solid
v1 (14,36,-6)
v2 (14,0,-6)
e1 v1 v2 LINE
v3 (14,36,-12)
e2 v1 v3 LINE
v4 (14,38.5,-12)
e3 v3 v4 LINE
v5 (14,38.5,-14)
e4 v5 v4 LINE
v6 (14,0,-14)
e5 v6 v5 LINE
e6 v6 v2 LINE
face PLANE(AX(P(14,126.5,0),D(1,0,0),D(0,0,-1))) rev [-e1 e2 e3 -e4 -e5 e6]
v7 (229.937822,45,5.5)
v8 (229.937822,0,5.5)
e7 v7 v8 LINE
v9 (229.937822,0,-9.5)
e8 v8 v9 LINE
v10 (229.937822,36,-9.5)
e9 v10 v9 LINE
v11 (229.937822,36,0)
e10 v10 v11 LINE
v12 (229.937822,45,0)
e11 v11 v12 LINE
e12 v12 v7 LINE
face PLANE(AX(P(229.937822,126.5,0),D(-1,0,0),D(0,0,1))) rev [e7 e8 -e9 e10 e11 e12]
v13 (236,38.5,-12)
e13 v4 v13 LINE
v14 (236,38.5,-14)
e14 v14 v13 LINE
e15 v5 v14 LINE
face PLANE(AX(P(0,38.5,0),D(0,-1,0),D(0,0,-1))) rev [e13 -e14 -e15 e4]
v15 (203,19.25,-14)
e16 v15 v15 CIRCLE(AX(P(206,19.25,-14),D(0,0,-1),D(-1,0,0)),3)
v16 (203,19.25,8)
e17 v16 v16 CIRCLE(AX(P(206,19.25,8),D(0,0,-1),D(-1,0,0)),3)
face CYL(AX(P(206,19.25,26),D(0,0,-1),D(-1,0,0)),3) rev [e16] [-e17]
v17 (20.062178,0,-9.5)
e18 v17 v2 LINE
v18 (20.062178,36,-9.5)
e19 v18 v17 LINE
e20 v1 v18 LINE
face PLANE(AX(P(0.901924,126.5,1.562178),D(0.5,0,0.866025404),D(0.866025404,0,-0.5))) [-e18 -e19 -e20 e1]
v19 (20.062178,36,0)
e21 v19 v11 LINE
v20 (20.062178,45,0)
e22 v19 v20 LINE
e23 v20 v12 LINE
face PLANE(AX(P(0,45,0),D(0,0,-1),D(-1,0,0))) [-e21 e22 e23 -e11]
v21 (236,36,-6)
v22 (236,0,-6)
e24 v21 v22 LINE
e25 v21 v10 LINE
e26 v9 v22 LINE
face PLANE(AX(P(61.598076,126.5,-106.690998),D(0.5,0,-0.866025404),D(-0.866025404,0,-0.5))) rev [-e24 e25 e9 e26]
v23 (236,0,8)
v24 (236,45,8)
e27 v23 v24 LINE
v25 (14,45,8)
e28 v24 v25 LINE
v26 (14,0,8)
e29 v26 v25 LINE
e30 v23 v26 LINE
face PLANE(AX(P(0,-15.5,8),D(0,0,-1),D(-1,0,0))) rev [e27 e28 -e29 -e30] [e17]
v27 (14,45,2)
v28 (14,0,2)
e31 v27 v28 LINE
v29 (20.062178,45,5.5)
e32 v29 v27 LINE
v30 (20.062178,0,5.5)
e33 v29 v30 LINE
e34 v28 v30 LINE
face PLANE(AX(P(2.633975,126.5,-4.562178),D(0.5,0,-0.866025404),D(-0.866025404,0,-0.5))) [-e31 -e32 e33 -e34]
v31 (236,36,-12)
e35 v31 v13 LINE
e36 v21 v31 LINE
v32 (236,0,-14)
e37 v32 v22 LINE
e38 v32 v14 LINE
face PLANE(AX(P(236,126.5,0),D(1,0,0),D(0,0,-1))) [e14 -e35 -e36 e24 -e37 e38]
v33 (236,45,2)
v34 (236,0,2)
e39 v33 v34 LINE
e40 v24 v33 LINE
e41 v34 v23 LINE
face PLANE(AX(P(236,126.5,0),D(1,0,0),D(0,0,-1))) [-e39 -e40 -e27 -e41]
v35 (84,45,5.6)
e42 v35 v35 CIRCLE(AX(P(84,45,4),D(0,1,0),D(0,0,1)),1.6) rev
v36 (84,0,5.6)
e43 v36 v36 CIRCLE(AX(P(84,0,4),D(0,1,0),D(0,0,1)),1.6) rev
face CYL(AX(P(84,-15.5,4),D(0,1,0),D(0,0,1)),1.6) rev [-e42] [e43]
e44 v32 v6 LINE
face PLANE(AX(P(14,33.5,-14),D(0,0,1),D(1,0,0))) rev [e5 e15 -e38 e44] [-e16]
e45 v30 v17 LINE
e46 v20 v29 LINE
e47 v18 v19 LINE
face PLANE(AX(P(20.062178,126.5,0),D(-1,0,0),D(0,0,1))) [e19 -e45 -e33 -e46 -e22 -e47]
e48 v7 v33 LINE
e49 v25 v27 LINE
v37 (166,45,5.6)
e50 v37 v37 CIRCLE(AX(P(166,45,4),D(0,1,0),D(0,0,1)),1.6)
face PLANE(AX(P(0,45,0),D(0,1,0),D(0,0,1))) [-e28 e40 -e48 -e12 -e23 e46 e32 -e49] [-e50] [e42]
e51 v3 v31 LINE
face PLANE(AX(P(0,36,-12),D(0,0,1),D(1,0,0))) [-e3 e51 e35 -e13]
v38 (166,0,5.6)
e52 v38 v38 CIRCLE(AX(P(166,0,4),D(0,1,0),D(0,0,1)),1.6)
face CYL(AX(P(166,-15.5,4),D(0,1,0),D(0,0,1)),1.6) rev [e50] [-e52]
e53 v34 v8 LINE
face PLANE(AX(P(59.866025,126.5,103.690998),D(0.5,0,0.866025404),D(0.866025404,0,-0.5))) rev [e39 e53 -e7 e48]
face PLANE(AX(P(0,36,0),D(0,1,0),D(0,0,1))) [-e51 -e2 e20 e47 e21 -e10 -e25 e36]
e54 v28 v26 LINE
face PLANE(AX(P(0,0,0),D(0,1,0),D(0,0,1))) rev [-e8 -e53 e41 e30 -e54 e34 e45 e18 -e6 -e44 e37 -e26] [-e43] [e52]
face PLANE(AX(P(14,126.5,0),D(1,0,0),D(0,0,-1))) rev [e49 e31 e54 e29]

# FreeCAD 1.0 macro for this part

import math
import FreeCAD as App
import Part
import Sketcher
from FreeCAD import Vector
Q = App.Units.Quantity


def edges_at(feature, points):
    """Names of the edges that pass closest to the given points."""
    edges = feature.Shape.Edges
    near = lambda p: min(range(len(edges)), key=lambda i: edges[i].distToShape(Part.Vertex(*p))[0])
    return sorted({f"Edge{near(p) + 1}" for p in points})


def add_polygon(sketch, points):
    """Adds a closed chain of lines whose ends are joined by coincident constraints."""
    first, n = sketch.GeometryCount, len(points)
    for a, b in zip(points, points[1:] + points[:1]):
        sketch.addGeometry(Part.LineSegment(App.Vector(*a, 0), App.Vector(*b, 0)), False)
    for i in range(n):
        sketch.addConstraint(Sketcher.Constraint("Coincident", first + i, 2, first + (i + 1) % n, 1))

doc = App.newDocument("Part")
body = doc.addObject("PartDesign::Body", "Body")

# Sketch on XZ plane
sketch1 = body.newObject("Sketcher::SketchObject", "Sketch")
sketch1.AttachmentSupport = (doc.getObject("XZ_Plane"), [""])
sketch1.MapMode = "FlatFace"
add_polygon(sketch1, [(-10, -360), (-10, 10), (260, 10), (260, -360)])  # lines 0-3
add_polygon(sketch1, [(250, 0), (0, 0), (0, -350), (250, -350)])  # lines 4-7
sketch1.addConstraint(Sketcher.Constraint("Vertical", 0))
sketch1.addConstraint(Sketcher.Constraint("Horizontal", 1))
sketch1.addConstraint(Sketcher.Constraint("Vertical", 2))
sketch1.addConstraint(Sketcher.Constraint("Horizontal", 3))
sketch1.addConstraint(Sketcher.Constraint("Horizontal", 4))
sketch1.addConstraint(Sketcher.Constraint("Vertical", 5))
sketch1.addConstraint(Sketcher.Constraint("Horizontal", 6))
sketch1.addConstraint(Sketcher.Constraint("Vertical", 7))
sketch1.addConstraint(Sketcher.Constraint("Coincident", 4, 2, -1, 1))
sketch1.addConstraint(Sketcher.Constraint("DistanceX", 1, 1, 1, 2, Q("270 mm")))
sketch1.addConstraint(Sketcher.Constraint("DistanceX", 4, 2, 4, 1, Q("250 mm")))
sketch1.addConstraint(Sketcher.Constraint("DistanceY", 0, 1, 0, 2, Q("370 mm")))
sketch1.addConstraint(Sketcher.Constraint("DistanceY", 5, 2, 5, 1, Q("350 mm")))
sketch1.addConstraint(Sketcher.Constraint("DistanceX", 0, 2, -1, 1, Q("10 mm")))
sketch1.addConstraint(Sketcher.Constraint("DistanceY", -1, 1, 0, 2, Q("10 mm")))
pad1 = body.newObject("PartDesign::Pad", "Pad")
pad1.Profile = sketch1
pad1.Length = 45
pad1.Reversed = True

# Sketch on XZ plane
sketch2 = body.newObject("Sketcher::SketchObject", "Sketch001")
sketch2.AttachmentSupport = (doc.getObject("XZ_Plane"), [""])
sketch2.MapMode = "FlatFace"
sketch2.AttachmentOffset = App.Placement(Vector(0, 0, -38.5), App.Rotation())
add_polygon(sketch2, [(0, -350), (0, 0), (250, 0), (250, -350)])  # lines 0-3
add_polygon(sketch2, [(236, -14), (14, -14), (14, -336), (236, -336)])  # lines 4-7
sketch2.addConstraint(Sketcher.Constraint("Vertical", 0))
sketch2.addConstraint(Sketcher.Constraint("Horizontal", 1))
sketch2.addConstraint(Sketcher.Constraint("Vertical", 2))
sketch2.addConstraint(Sketcher.Constraint("Horizontal", 3))
sketch2.addConstraint(Sketcher.Constraint("Horizontal", 4))
sketch2.addConstraint(Sketcher.Constraint("Vertical", 5))
sketch2.addConstraint(Sketcher.Constraint("Horizontal", 6))
sketch2.addConstraint(Sketcher.Constraint("Vertical", 7))
sketch2.addConstraint(Sketcher.Constraint("Coincident", 0, 2, -1, 1))
sketch2.addConstraint(Sketcher.Constraint("DistanceX", 1, 1, 1, 2, Q("250 mm")))
sketch2.addConstraint(Sketcher.Constraint("DistanceX", 4, 2, 4, 1, Q("222 mm")))
sketch2.addConstraint(Sketcher.Constraint("DistanceY", 0, 1, 0, 2, Q("350 mm")))
sketch2.addConstraint(Sketcher.Constraint("DistanceY", 5, 2, 5, 1, Q("322 mm")))
sketch2.addConstraint(Sketcher.Constraint("DistanceX", -1, 1, 4, 2, Q("14 mm")))
sketch2.addConstraint(Sketcher.Constraint("DistanceY", 4, 2, -1, 1, Q("14 mm")))
pad2 = body.newObject("PartDesign::Pad", "Pad001")
pad2.Profile = sketch2
pad2.Length = 5

# Sketch on XZ plane
sketch3 = body.newObject("Sketcher::SketchObject", "Sketch002")
sketch3.AttachmentSupport = (doc.getObject("XZ_Plane"), [""])
sketch3.MapMode = "FlatFace"
sketch3.AttachmentOffset = App.Placement(Vector(0, 0, -38.5), App.Rotation())
add_polygon(sketch3, [(2, -348), (2, -2), (248, -2), (248, -348)])  # lines 0-3
add_polygon(sketch3, [(238, -12), (12, -12), (12, -338), (238, -338)])  # lines 4-7
sketch3.addConstraint(Sketcher.Constraint("Vertical", 0))
sketch3.addConstraint(Sketcher.Constraint("Horizontal", 1))
sketch3.addConstraint(Sketcher.Constraint("Vertical", 2))
sketch3.addConstraint(Sketcher.Constraint("Horizontal", 3))
sketch3.addConstraint(Sketcher.Constraint("Horizontal", 4))
sketch3.addConstraint(Sketcher.Constraint("Vertical", 5))
sketch3.addConstraint(Sketcher.Constraint("Horizontal", 6))
sketch3.addConstraint(Sketcher.Constraint("Vertical", 7))
sketch3.addConstraint(Sketcher.Constraint("DistanceX", 1, 1, 1, 2, Q("246 mm")))
sketch3.addConstraint(Sketcher.Constraint("DistanceX", 4, 2, 4, 1, Q("226 mm")))
sketch3.addConstraint(Sketcher.Constraint("DistanceY", 0, 1, 0, 2, Q("346 mm")))
sketch3.addConstraint(Sketcher.Constraint("DistanceY", 5, 2, 5, 1, Q("326 mm")))
sketch3.addConstraint(Sketcher.Constraint("DistanceX", -1, 1, 0, 2, Q("2 mm")))
sketch3.addConstraint(Sketcher.Constraint("DistanceY", 0, 2, -1, 1, Q("2 mm")))
sketch3.addConstraint(Sketcher.Constraint("DistanceX", -1, 1, 4, 2, Q("12 mm")))
sketch3.addConstraint(Sketcher.Constraint("DistanceY", 4, 2, -1, 1, Q("12 mm")))
pocket1 = body.newObject("PartDesign::Pocket", "Pocket")
pocket1.Profile = sketch3
pocket1.Length = 2.5
pocket1.Reversed = True

# Sketch on XZ plane
sketch4 = body.newObject("Sketcher::SketchObject", "Sketch003")
sketch4.AttachmentSupport = (doc.getObject("XZ_Plane"), [""])
sketch4.MapMode = "FlatFace"
sketch4.AttachmentOffset = App.Placement(Vector(0, 0, -45), App.Rotation())
sketch4.addGeometry(Part.Circle(Vector(-5, 5, 0), Vector(0, 0, 1), 1.6), False)
sketch4.addGeometry(Part.ArcOfCircle(Part.Circle(Vector(-5, -355, 0), Vector(0, 0, 1), 1.6), math.radians(45), math.radians(225)), False)
sketch4.addGeometry(Part.ArcOfCircle(Part.Circle(Vector(-5, -355, 0), Vector(0, 0, 1), 1.6), math.radians(0), math.radians(45)), False)
sketch4.addGeometry(Part.ArcOfCircle(Part.Circle(Vector(-5, -355, 0), Vector(0, 0, 1), 1.6), math.radians(-135), math.radians(0)), False)
sketch4.addGeometry(Part.Circle(Vector(255, -355, 0), Vector(0, 0, 1), 1.6), False)
sketch4.addGeometry(Part.Circle(Vector(255, 5, 0), Vector(0, 0, 1), 1.6), False)
sketch4.addConstraint(Sketcher.Constraint("Tangent", 1, 1, 2, 2))
sketch4.addConstraint(Sketcher.Constraint("Tangent", 2, 1, 3, 2))
sketch4.addConstraint(Sketcher.Constraint("Tangent", 3, 1, 1, 2))
sketch4.addConstraint(Sketcher.Constraint("Equal", 0, 1))
sketch4.addConstraint(Sketcher.Constraint("Equal", 3, 4))
sketch4.addConstraint(Sketcher.Constraint("Equal", 4, 5))
sketch4.addConstraint(Sketcher.Constraint("Horizontal", 3, 3, 4, 3))
sketch4.addConstraint(Sketcher.Constraint("Horizontal", 0, 3, 5, 3))
sketch4.addConstraint(Sketcher.Constraint("Horizontal", 4, 3, 2, 1))
sketch4.addConstraint(Sketcher.Constraint("Vertical", 0, 3, 1, 3))
sketch4.addConstraint(Sketcher.Constraint("Vertical", 4, 3, 5, 3))
sketch4.addConstraint(Sketcher.Constraint("Diameter", 0, Q("3.2 mm")))
sketch4.addConstraint(Sketcher.Constraint("DistanceX", 0, 3, -1, 1, Q("5 mm")))
sketch4.addConstraint(Sketcher.Constraint("DistanceY", -1, 1, 0, 3, Q("5 mm")))
sketch4.addConstraint(Sketcher.Constraint("DistanceY", 1, 3, -1, 1, Q("355 mm")))
sketch4.addConstraint(Sketcher.Constraint("DistanceX", -1, 1, 4, 3, Q("255 mm")))
sketch4.addConstraint(Sketcher.Constraint("DistanceX", 1, 1, -1, 1, Q("3.868629 mm")))
sketch4.addConstraint(Sketcher.Constraint("DistanceX", 3, 1, -1, 1, Q("6.131371 mm")))
pocket2 = body.newObject("PartDesign::Pocket", "Pocket001")
pocket2.Profile = sketch4
pocket2.Length = 109.5
pocket2.Reversed = True
doc.recompute()

fillet = body.newObject("PartDesign::Fillet", "Fillet")
fillet.Base = (pocket2, edges_at(pocket2, [
    (-10, 22.5, 10),
    (-10, 22.5, -360),
    (260, 22.5, -360),
    (260, 22.5, 10),
]))
fillet.Radius = 5

# Sketch on XZ plane
sketch5 = body.newObject("Sketcher::SketchObject", "Sketch004")
sketch5.AttachmentSupport = (doc.getObject("XZ_Plane"), [""])
sketch5.MapMode = "FlatFace"
sketch5.AttachmentOffset = App.Placement(Vector(0, 0, -33.5), App.Rotation())
add_polygon(sketch5, [(0, 0), (0, -350), (250, -350), (250, 0)])  # lines 0-3
add_polygon(sketch5, [(236, -336), (14, -336), (14, -14), (236, -14)])  # lines 4-7
sketch5.addConstraint(Sketcher.Constraint("Vertical", 0))
sketch5.addConstraint(Sketcher.Constraint("Horizontal", 1))
sketch5.addConstraint(Sketcher.Constraint("Vertical", 2))
sketch5.addConstraint(Sketcher.Constraint("Horizontal", 3))
sketch5.addConstraint(Sketcher.Constraint("Horizontal", 4))
sketch5.addConstraint(Sketcher.Constraint("Vertical", 5))
sketch5.addConstraint(Sketcher.Constraint("Horizontal", 6))
sketch5.addConstraint(Sketcher.Constraint("Vertical", 7))
sketch5.addConstraint(Sketcher.Constraint("Coincident", 3, 2, -1, 1))
sketch5.addConstraint(Sketcher.Constraint("DistanceX", 1, 1, 1, 2, Q("250 mm")))
sketch5.addConstraint(Sketcher.Constraint("DistanceX", 4, 2, 4, 1, Q("222 mm")))
sketch5.addConstraint(Sketcher.Constraint("DistanceY", 0, 2, 0, 1, Q("350 mm")))
sketch5.addConstraint(Sketcher.Constraint("DistanceY", 5, 1, 5, 2, Q("322 mm")))
sketch5.addConstraint(Sketcher.Constraint("DistanceX", -1, 1, 4, 2, Q("14 mm")))
sketch5.addConstraint(Sketcher.Constraint("DistanceY", 4, 2, -1, 1, Q("336 mm")))
pad3 = body.newObject("PartDesign::Pad", "Pad002")
pad3.Profile = sketch5
pad3.Length = 33.5

# Sketch on XZ plane
sketch6 = body.newObject("Sketcher::SketchObject", "Sketch005")
sketch6.AttachmentSupport = (doc.getObject("XZ_Plane"), [""])
sketch6.MapMode = "FlatFace"
sketch6.AttachmentOffset = App.Placement(Vector(0, 0, -126.5), App.Rotation())
sketch6.addGeometry(Part.LineSegment(Vector(14, -336, 0), Vector(14, -6, 0)), False)
sketch6.addGeometry(Part.LineSegment(Vector(14, -6, 0), Vector(20, -10, 0)), False)
sketch6.addGeometry(Part.LineSegment(Vector(20, -10, 0), Vector(20, 6, 0)), False)
sketch6.addGeometry(Part.LineSegment(Vector(20, 6, 0), Vector(14, 2, 0)), False)
sketch6.addGeometry(Part.LineSegment(Vector(14, 2, 0), Vector(14, 10, 0)), False)
sketch6.addGeometry(Part.LineSegment(Vector(14, 10, 0), Vector(-5, 10, 0)), False)
sketch6.addGeometry(Part.ArcOfCircle(Part.Circle(Vector(-5, 5, 0), Vector(0, 0, 1), 5), math.radians(90), math.radians(180)), False)
sketch6.addGeometry(Part.LineSegment(Vector(-10, 5, 0), Vector(-10, -355, 0)), False)
sketch6.addGeometry(Part.ArcOfCircle(Part.Circle(Vector(-5, -355, 0), Vector(0, 0, 1), 5), math.radians(180), math.radians(270)), False)
sketch6.addGeometry(Part.LineSegment(Vector(-5, -360, 0), Vector(255, -360, 0)), False)
sketch6.addGeometry(Part.ArcOfCircle(Part.Circle(Vector(255, -355, 0), Vector(0, 0, 1), 5), math.radians(-90), math.radians(0)), False)
sketch6.addGeometry(Part.LineSegment(Vector(260, -355, 0), Vector(260, 5, 0)), False)
sketch6.addGeometry(Part.ArcOfCircle(Part.Circle(Vector(255, 5, 0), Vector(0, 0, 1), 5), math.radians(0), math.radians(90)), False)
sketch6.addGeometry(Part.LineSegment(Vector(255, 10, 0), Vector(236, 10, 0)), False)
sketch6.addGeometry(Part.LineSegment(Vector(236, 10, 0), Vector(236, 2, 0)), False)
sketch6.addGeometry(Part.LineSegment(Vector(236, 2, 0), Vector(230, 6, 0)), False)
sketch6.addGeometry(Part.LineSegment(Vector(230, 6, 0), Vector(230, -10, 0)), False)
sketch6.addGeometry(Part.LineSegment(Vector(230, -10, 0), Vector(236, -6, 0)), False)
sketch6.addGeometry(Part.LineSegment(Vector(236, -6, 0), Vector(236, -336, 0)), False)
sketch6.addGeometry(Part.LineSegment(Vector(236, -336, 0), Vector(14, -336, 0)), False)
sketch6.addConstraint(Sketcher.Constraint("Coincident", 0, 2, 1, 1))
sketch6.addConstraint(Sketcher.Constraint("Coincident", 1, 2, 2, 1))
sketch6.addConstraint(Sketcher.Constraint("Coincident", 2, 2, 3, 1))
sketch6.addConstraint(Sketcher.Constraint("Coincident", 3, 2, 4, 1))
sketch6.addConstraint(Sketcher.Constraint("Coincident", 4, 2, 5, 1))
sketch6.addConstraint(Sketcher.Constraint("Tangent", 5, 2, 6, 1))
sketch6.addConstraint(Sketcher.Constraint("Tangent", 6, 2, 7, 1))
sketch6.addConstraint(Sketcher.Constraint("Tangent", 7, 2, 8, 1))
sketch6.addConstraint(Sketcher.Constraint("Tangent", 8, 2, 9, 1))
sketch6.addConstraint(Sketcher.Constraint("Tangent", 9, 2, 10, 1))
sketch6.addConstraint(Sketcher.Constraint("Tangent", 10, 2, 11, 1))
sketch6.addConstraint(Sketcher.Constraint("Tangent", 11, 2, 12, 1))
sketch6.addConstraint(Sketcher.Constraint("Tangent", 12, 2, 13, 1))
sketch6.addConstraint(Sketcher.Constraint("Coincident", 13, 2, 14, 1))
sketch6.addConstraint(Sketcher.Constraint("Coincident", 14, 2, 15, 1))
sketch6.addConstraint(Sketcher.Constraint("Coincident", 15, 2, 16, 1))
sketch6.addConstraint(Sketcher.Constraint("Coincident", 16, 2, 17, 1))
sketch6.addConstraint(Sketcher.Constraint("Coincident", 17, 2, 18, 1))
sketch6.addConstraint(Sketcher.Constraint("Coincident", 18, 2, 19, 1))
sketch6.addConstraint(Sketcher.Constraint("Coincident", 19, 2, 0, 1))
sketch6.addConstraint(Sketcher.Constraint("Vertical", 0))
sketch6.addConstraint(Sketcher.Constraint("Vertical", 2))
sketch6.addConstraint(Sketcher.Constraint("Vertical", 4))
sketch6.addConstraint(Sketcher.Constraint("Horizontal", 5))
sketch6.addConstraint(Sketcher.Constraint("Vertical", 7))
sketch6.addConstraint(Sketcher.Constraint("Horizontal", 9))
sketch6.addConstraint(Sketcher.Constraint("Vertical", 11))
sketch6.addConstraint(Sketcher.Constraint("Horizontal", 13))
sketch6.addConstraint(Sketcher.Constraint("Vertical", 14))
sketch6.addConstraint(Sketcher.Constraint("Vertical", 16))
sketch6.addConstraint(Sketcher.Constraint("Vertical", 18))
sketch6.addConstraint(Sketcher.Constraint("Horizontal", 19))
sketch6.addConstraint(Sketcher.Constraint("Equal", 6, 8))
sketch6.addConstraint(Sketcher.Constraint("Equal", 8, 10))
sketch6.addConstraint(Sketcher.Constraint("Equal", 10, 12))
sketch6.addConstraint(Sketcher.Constraint("Parallel", 1, 15))
sketch6.addConstraint(Sketcher.Constraint("Parallel", 3, 17))
sketch6.addConstraint(Sketcher.Constraint("Horizontal", 6, 3, 12, 3))
sketch6.addConstraint(Sketcher.Constraint("Horizontal", 3, 2, 14, 2))
sketch6.addConstraint(Sketcher.Constraint("Horizontal", 2, 2, 15, 2))
sketch6.addConstraint(Sketcher.Constraint("Horizontal", 1, 2, 16, 2))
sketch6.addConstraint(Sketcher.Constraint("Horizontal", 0, 2, 17, 2))
sketch6.addConstraint(Sketcher.Constraint("Vertical", 0, 2, 3, 2))
sketch6.addConstraint(Sketcher.Constraint("Vertical", 14, 2, 17, 2))
sketch6.addConstraint(Sketcher.Constraint("Equal", 5, 13))
sketch6.addConstraint(Sketcher.Constraint("Radius", 6, Q("5 mm")))
sketch6.addConstraint(Sketcher.Constraint("DistanceX", 5, 2, 5, 1, Q("19 mm")))
sketch6.addConstraint(Sketcher.Constraint("DistanceX", 9, 1, 9, 2, Q("260 mm")))
sketch6.addConstraint(Sketcher.Constraint("DistanceY", 0, 1, 0, 2, Q("330 mm")))
sketch6.addConstraint(Sketcher.Constraint("DistanceY", 2, 1, 2, 2, Q("15 mm")))
sketch6.addConstraint(Sketcher.Constraint("DistanceY", 4, 1, 4, 2, Q("8 mm")))
sketch6.addConstraint(Sketcher.Constraint("DistanceY", 7, 2, 7, 1, Q("360 mm")))
sketch6.addConstraint(Sketcher.Constraint("Angle", 1, Q("-30 deg")))
sketch6.addConstraint(Sketcher.Constraint("Distance", 1, Q("7 mm")))
sketch6.addConstraint(Sketcher.Constraint("DistanceX", 6, 3, -1, 1, Q("5 mm")))
sketch6.addConstraint(Sketcher.Constraint("DistanceY", -1, 1, 6, 3, Q("5 mm")))
pocket3 = body.newObject("PartDesign::Pocket", "Pocket002")
pocket3.Profile = sketch6
pocket3.Length = 126.5
pocket3.Reversed = True

# Sketch on XZ plane
sketch7 = body.newObject("Sketcher::SketchObject", "Sketch006")
sketch7.AttachmentSupport = (doc.getObject("XZ_Plane"), [""])
sketch7.MapMode = "FlatFace"
sketch7.AttachmentOffset = App.Placement(Vector(0, 0, -38.5), App.Rotation())
add_polygon(sketch7, [(20.1, -2), (20.1, 0), (229.9, 0), (229.9, -2)])  # lines 0-3
sketch7.addConstraint(Sketcher.Constraint("Vertical", 0))
sketch7.addConstraint(Sketcher.Constraint("Horizontal", 1))
sketch7.addConstraint(Sketcher.Constraint("Vertical", 2))
sketch7.addConstraint(Sketcher.Constraint("Horizontal", 3))
sketch7.addConstraint(Sketcher.Constraint("PointOnObject", 0, 2, -1))
sketch7.addConstraint(Sketcher.Constraint("DistanceY", 0, 1, 0, 2, Q("2 mm")))
sketch7.addConstraint(Sketcher.Constraint("DistanceX", 1, 1, 1, 2, Q("209.875644 mm")))
sketch7.addConstraint(Sketcher.Constraint("DistanceX", -1, 1, 0, 2, Q("20.062178 mm")))
pocket4 = body.newObject("PartDesign::Pocket", "Pocket003")
pocket4.Profile = sketch7
pocket4.Length = 2.5
pocket4.Reversed = True

# Sketch on XZ plane
sketch8 = body.newObject("Sketcher::SketchObject", "Sketch007")
sketch8.AttachmentSupport = (doc.getObject("XZ_Plane"), [""])
sketch8.MapMode = "FlatFace"
sketch8.AttachmentOffset = App.Placement(Vector(0, 0, -45), App.Rotation())
add_polygon(sketch8, [(236, 10), (236, 8), (14, 8), (14, 10)])  # lines 0-3
sketch8.addConstraint(Sketcher.Constraint("Vertical", 0))
sketch8.addConstraint(Sketcher.Constraint("Horizontal", 1))
sketch8.addConstraint(Sketcher.Constraint("Vertical", 2))
sketch8.addConstraint(Sketcher.Constraint("Horizontal", 3))
sketch8.addConstraint(Sketcher.Constraint("DistanceX", 1, 2, 1, 1, Q("222 mm")))
sketch8.addConstraint(Sketcher.Constraint("DistanceY", 0, 2, 0, 1, Q("2 mm")))
sketch8.addConstraint(Sketcher.Constraint("DistanceX", -1, 1, 0, 2, Q("236 mm")))
sketch8.addConstraint(Sketcher.Constraint("DistanceY", -1, 1, 0, 2, Q("8 mm")))
pocket5 = body.newObject("PartDesign::Pocket", "Pocket004")
pocket5.Profile = sketch8
pocket5.Length = 60.5
pocket5.Reversed = True

# Sketch on XZ plane
sketch9 = body.newObject("Sketcher::SketchObject", "Sketch008")
sketch9.AttachmentSupport = (doc.getObject("XZ_Plane"), [""])
sketch9.MapMode = "FlatFace"
sketch9.AttachmentOffset = App.Placement(Vector(0, 0, -45), App.Rotation())
sketch9.addGeometry(Part.Circle(Vector(166, 4, 0), Vector(0, 0, 1), 1.6), False)
sketch9.addGeometry(Part.Circle(Vector(84, 4, 0), Vector(0, 0, 1), 1.6), False)
sketch9.addConstraint(Sketcher.Constraint("Equal", 0, 1))
sketch9.addConstraint(Sketcher.Constraint("Horizontal", 0, 3, 1, 3))
sketch9.addConstraint(Sketcher.Constraint("Diameter", 0, Q("3.2 mm")))
sketch9.addConstraint(Sketcher.Constraint("DistanceX", -1, 1, 0, 3, Q("166 mm")))
sketch9.addConstraint(Sketcher.Constraint("DistanceY", -1, 1, 0, 3, Q("4 mm")))
sketch9.addConstraint(Sketcher.Constraint("DistanceX", -1, 1, 1, 3, Q("84 mm")))
pocket6 = body.newObject("PartDesign::Pocket", "Pocket005")
pocket6.Profile = sketch9
pocket6.Length = 60.5
pocket6.Reversed = True

# Sketch on XY plane
sketch10 = body.newObject("Sketcher::SketchObject", "Sketch009")
sketch10.AttachmentSupport = (doc.getObject("XY_Plane"), [""])
sketch10.MapMode = "FlatFace"
sketch10.AttachmentOffset = App.Placement(Vector(0, 0, -14), App.Rotation())
sketch10.addGeometry(Part.Circle(Vector(206, 19.2, 0), Vector(0, 0, 1), 3), False)
sketch10.addConstraint(Sketcher.Constraint("Diameter", 0, Q("6 mm")))
sketch10.addConstraint(Sketcher.Constraint("DistanceX", -1, 1, 0, 3, Q("206 mm")))
sketch10.addConstraint(Sketcher.Constraint("DistanceY", -1, 1, 0, 3, Q("19.25 mm")))
pocket7 = body.newObject("PartDesign::Pocket", "Pocket006")
pocket7.Profile = sketch10
pocket7.Length = 40
pocket7.Reversed = True

doc.recompute()
